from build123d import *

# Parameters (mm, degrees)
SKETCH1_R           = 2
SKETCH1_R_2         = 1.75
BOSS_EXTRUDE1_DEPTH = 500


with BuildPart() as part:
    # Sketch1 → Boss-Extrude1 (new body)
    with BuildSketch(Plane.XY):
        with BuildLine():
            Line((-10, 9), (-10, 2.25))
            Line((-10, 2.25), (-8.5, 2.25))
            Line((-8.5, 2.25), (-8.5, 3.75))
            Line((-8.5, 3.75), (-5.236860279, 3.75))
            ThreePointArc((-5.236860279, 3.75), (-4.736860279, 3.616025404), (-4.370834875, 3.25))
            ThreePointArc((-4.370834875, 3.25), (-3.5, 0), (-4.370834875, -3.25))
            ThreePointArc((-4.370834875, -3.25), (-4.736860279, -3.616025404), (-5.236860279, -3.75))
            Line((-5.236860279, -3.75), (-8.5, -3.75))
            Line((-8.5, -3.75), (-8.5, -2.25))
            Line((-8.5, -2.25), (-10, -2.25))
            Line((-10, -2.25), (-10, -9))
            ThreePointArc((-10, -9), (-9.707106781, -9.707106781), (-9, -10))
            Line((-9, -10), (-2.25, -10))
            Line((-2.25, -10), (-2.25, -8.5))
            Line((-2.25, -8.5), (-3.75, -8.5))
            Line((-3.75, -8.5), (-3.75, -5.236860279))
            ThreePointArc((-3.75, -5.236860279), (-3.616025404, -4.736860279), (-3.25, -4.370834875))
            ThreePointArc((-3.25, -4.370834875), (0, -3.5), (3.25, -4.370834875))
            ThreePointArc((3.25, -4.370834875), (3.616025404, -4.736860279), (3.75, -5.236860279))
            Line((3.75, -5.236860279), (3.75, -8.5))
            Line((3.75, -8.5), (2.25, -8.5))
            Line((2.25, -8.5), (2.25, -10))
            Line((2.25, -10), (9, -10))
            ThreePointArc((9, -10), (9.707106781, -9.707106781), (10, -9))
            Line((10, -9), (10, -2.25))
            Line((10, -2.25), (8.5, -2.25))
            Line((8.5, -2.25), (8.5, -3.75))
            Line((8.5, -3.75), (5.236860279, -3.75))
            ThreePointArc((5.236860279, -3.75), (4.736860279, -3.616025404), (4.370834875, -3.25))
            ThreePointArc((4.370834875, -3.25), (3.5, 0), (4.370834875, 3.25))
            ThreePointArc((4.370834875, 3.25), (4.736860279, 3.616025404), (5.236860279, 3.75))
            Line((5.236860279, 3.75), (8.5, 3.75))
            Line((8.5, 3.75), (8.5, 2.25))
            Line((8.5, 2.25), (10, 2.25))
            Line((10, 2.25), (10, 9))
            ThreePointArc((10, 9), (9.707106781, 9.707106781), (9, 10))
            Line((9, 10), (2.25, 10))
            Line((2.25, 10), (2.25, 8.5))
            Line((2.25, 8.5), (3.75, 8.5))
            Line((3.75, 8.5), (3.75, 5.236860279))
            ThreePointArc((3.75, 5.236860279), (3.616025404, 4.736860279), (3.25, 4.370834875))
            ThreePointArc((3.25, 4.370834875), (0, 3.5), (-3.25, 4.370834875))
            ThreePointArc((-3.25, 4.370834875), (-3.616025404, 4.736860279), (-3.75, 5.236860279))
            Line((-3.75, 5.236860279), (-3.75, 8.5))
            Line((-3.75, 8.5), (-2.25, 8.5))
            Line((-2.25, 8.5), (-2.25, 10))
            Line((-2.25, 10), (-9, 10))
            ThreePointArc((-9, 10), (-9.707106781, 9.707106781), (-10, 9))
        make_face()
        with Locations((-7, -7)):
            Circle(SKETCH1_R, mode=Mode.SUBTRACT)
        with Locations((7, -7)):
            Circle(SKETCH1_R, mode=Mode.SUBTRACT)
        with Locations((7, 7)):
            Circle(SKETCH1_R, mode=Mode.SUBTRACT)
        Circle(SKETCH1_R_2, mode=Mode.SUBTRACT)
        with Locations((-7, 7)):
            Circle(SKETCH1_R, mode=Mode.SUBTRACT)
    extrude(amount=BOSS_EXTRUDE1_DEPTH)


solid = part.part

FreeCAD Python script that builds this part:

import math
import FreeCAD as App
import Part
import Sketcher
from FreeCAD import Vector

doc = App.newDocument("Part")
body = doc.addObject("PartDesign::Body", "Body")

sketch1 = body.newObject("Sketcher::SketchObject", "Sketch")
sketch1.AttachmentSupport = (doc.getObject("XY_Plane"), [""])
sketch1.MapMode = "FlatFace"
sketch1.addGeometry([
    Part.LineSegment(Vector(-10, 9, 0), Vector(-10, 2.2, 0)),
    Part.LineSegment(Vector(-10, 2.2, 0), Vector(-8.5, 2.2, 0)),
    Part.LineSegment(Vector(-8.5, 2.2, 0), Vector(-8.5, 3.8, 0)),
    Part.LineSegment(Vector(-8.5, 3.8, 0), Vector(-5.2, 3.8, 0)),
    Part.ArcOfCircle(Part.Circle(Vector(-5.2, 2.8, 0), Vector(0, 0, 1), 1), math.radians(30), math.radians(90)),
    Part.ArcOfCircle(Part.Circle(Vector(-10, 0, 0), Vector(0, 0, 1), 6.5), math.radians(-30), math.radians(30)),
    Part.ArcOfCircle(Part.Circle(Vector(-5.2, -2.8, 0), Vector(0, 0, 1), 1), math.radians(-90), math.radians(-30)),
    Part.LineSegment(Vector(-5.2, -3.8, 0), Vector(-8.5, -3.8, 0)),
    Part.LineSegment(Vector(-8.5, -3.8, 0), Vector(-8.5, -2.2, 0)),
    Part.LineSegment(Vector(-8.5, -2.2, 0), Vector(-10, -2.2, 0)),
    Part.LineSegment(Vector(-10, -2.2, 0), Vector(-10, -9, 0)),
    Part.ArcOfCircle(Part.Circle(Vector(-9, -9, 0), Vector(0, 0, 1), 1), math.radians(-180), math.radians(-90)),
    Part.LineSegment(Vector(-9, -10, 0), Vector(-2.2, -10, 0)),
    Part.LineSegment(Vector(-2.2, -10, 0), Vector(-2.2, -8.5, 0)),
    Part.LineSegment(Vector(-2.2, -8.5, 0), Vector(-3.8, -8.5, 0)),
    Part.LineSegment(Vector(-3.8, -8.5, 0), Vector(-3.8, -5.2, 0)),
    Part.ArcOfCircle(Part.Circle(Vector(-2.8, -5.2, 0), Vector(0, 0, 1), 1), math.radians(120), math.radians(180)),
    Part.ArcOfCircle(Part.Circle(Vector(0, -10, 0), Vector(0, 0, 1), 6.5), math.radians(60), math.radians(120)),
    Part.ArcOfCircle(Part.Circle(Vector(2.8, -5.2, 0), Vector(0, 0, 1), 1), math.radians(0), math.radians(60)),
    Part.LineSegment(Vector(3.8, -5.2, 0), Vector(3.8, -8.5, 0)),
    Part.LineSegment(Vector(3.8, -8.5, 0), Vector(2.2, -8.5, 0)),
    Part.LineSegment(Vector(2.2, -8.5, 0), Vector(2.2, -10, 0)),
    Part.LineSegment(Vector(2.2, -10, 0), Vector(9, -10, 0)),
    Part.ArcOfCircle(Part.Circle(Vector(9, -9, 0), Vector(0, 0, 1), 1), math.radians(-90), math.radians(0)),
    Part.LineSegment(Vector(10, -9, 0), Vector(10, -2.2, 0)),
    Part.LineSegment(Vector(10, -2.2, 0), Vector(8.5, -2.2, 0)),
    Part.LineSegment(Vector(8.5, -2.2, 0), Vector(8.5, -3.8, 0)),
    Part.LineSegment(Vector(8.5, -3.8, 0), Vector(5.2, -3.8, 0)),
    Part.ArcOfCircle(Part.Circle(Vector(5.2, -2.8, 0), Vector(0, 0, 1), 1), math.radians(-150), math.radians(-90)),
    Part.ArcOfCircle(Part.Circle(Vector(10, 0, 0), Vector(0, 0, 1), 6.5), math.radians(150), math.radians(210)),
    Part.ArcOfCircle(Part.Circle(Vector(5.2, 2.8, 0), Vector(0, 0, 1), 1), math.radians(90), math.radians(150)),
    Part.LineSegment(Vector(5.2, 3.8, 0), Vector(8.5, 3.8, 0)),
    Part.LineSegment(Vector(8.5, 3.8, 0), Vector(8.5, 2.2, 0)),
    Part.LineSegment(Vector(8.5, 2.2, 0), Vector(10, 2.2, 0)),
    Part.LineSegment(Vector(10, 2.2, 0), Vector(10, 9, 0)),
    Part.ArcOfCircle(Part.Circle(Vector(9, 9, 0), Vector(0, 0, 1), 1), math.radians(0), math.radians(90)),
    Part.LineSegment(Vector(9, 10, 0), Vector(2.2, 10, 0)),
    Part.LineSegment(Vector(2.2, 10, 0), Vector(2.2, 8.5, 0)),
    Part.LineSegment(Vector(2.2, 8.5, 0), Vector(3.8, 8.5, 0)),
    Part.LineSegment(Vector(3.8, 8.5, 0), Vector(3.8, 5.2, 0)),
    Part.ArcOfCircle(Part.Circle(Vector(2.8, 5.2, 0), Vector(0, 0, 1), 1), math.radians(-60), math.radians(0)),
    Part.ArcOfCircle(Part.Circle(Vector(0, 10, 0), Vector(0, 0, 1), 6.5), math.radians(-120), math.radians(-60)),
    Part.ArcOfCircle(Part.Circle(Vector(-2.8, 5.2, 0), Vector(0, 0, 1), 1), math.radians(180), math.radians(240)),
    Part.LineSegment(Vector(-3.8, 5.2, 0), Vector(-3.8, 8.5, 0)),
    Part.LineSegment(Vector(-3.8, 8.5, 0), Vector(-2.2, 8.5, 0)),
    Part.LineSegment(Vector(-2.2, 8.5, 0), Vector(-2.2, 10, 0)),
    Part.LineSegment(Vector(-2.2, 10, 0), Vector(-9, 10, 0)),
    Part.ArcOfCircle(Part.Circle(Vector(-9, 9, 0), Vector(0, 0, 1), 1), math.radians(90), math.radians(180)),
    Part.Circle(Vector(-7, -7, 0), Vector(0, 0, 1), 2),
    Part.Circle(Vector(7, -7, 0), Vector(0, 0, 1), 2),
    Part.Circle(Vector(-7, 7, 0), Vector(0, 0, 1), 2),
    Part.Circle(Vector(0, 0, 0), Vector(0, 0, 1), 1.8),
    Part.Circle(Vector(7, 7, 0), Vector(0, 0, 1), 2),
], False)
sketch1.addConstraint([
    Sketcher.Constraint("Coincident", 0, 2, 1, 1),
    Sketcher.Constraint("Coincident", 1, 2, 2, 1),
    Sketcher.Constraint("Coincident", 2, 2, 3, 1),
    Sketcher.Constraint("Tangent", 3, 2, 4, 2),
    Sketcher.Constraint("Tangent", 4, 1, 5, 2),
    Sketcher.Constraint("Tangent", 5, 1, 6, 2),
    Sketcher.Constraint("Tangent", 6, 1, 7, 1),
    Sketcher.Constraint("Coincident", 7, 2, 8, 1),
    Sketcher.Constraint("Coincident", 8, 2, 9, 1),
    Sketcher.Constraint("Coincident", 9, 2, 10, 1),
    Sketcher.Constraint("Tangent", 10, 2, 11, 1),
    Sketcher.Constraint("Tangent", 11, 2, 12, 1),
    Sketcher.Constraint("Coincident", 12, 2, 13, 1),
    Sketcher.Constraint("Coincident", 13, 2, 14, 1),
    Sketcher.Constraint("Coincident", 14, 2, 15, 1),
    Sketcher.Constraint("Tangent", 15, 2, 16, 2),
    Sketcher.Constraint("Tangent", 16, 1, 17, 2),
    Sketcher.Constraint("Tangent", 17, 1, 18, 2),
    Sketcher.Constraint("Tangent", 18, 1, 19, 1),
    Sketcher.Constraint("Coincident", 19, 2, 20, 1),
    Sketcher.Constraint("Coincident", 20, 2, 21, 1),
    Sketcher.Constraint("Coincident", 21, 2, 22, 1),
    Sketcher.Constraint("Tangent", 22, 2, 23, 1),
    Sketcher.Constraint("Tangent", 23, 2, 24, 1),
    Sketcher.Constraint("Coincident", 24, 2, 25, 1),
    Sketcher.Constraint("Coincident", 25, 2, 26, 1),
    Sketcher.Constraint("Coincident", 26, 2, 27, 1),
    Sketcher.Constraint("Tangent", 27, 2, 28, 2),
    Sketcher.Constraint("Tangent", 28, 1, 29, 2),
    Sketcher.Constraint("Tangent", 29, 1, 30, 2),
    Sketcher.Constraint("Tangent", 30, 1, 31, 1),
    Sketcher.Constraint("Coincident", 31, 2, 32, 1),
    Sketcher.Constraint("Coincident", 32, 2, 33, 1),
    Sketcher.Constraint("Coincident", 33, 2, 34, 1),
    Sketcher.Constraint("Tangent", 34, 2, 35, 1),
    Sketcher.Constraint("Tangent", 35, 2, 36, 1),
    Sketcher.Constraint("Coincident", 36, 2, 37, 1),
    Sketcher.Constraint("Coincident", 37, 2, 38, 1),
    Sketcher.Constraint("Coincident", 38, 2, 39, 1),
    Sketcher.Constraint("Tangent", 39, 2, 40, 2),
    Sketcher.Constraint("Tangent", 40, 1, 41, 2),
    Sketcher.Constraint("Tangent", 41, 1, 42, 2),
    Sketcher.Constraint("Tangent", 42, 1, 43, 1),
    Sketcher.Constraint("Coincident", 43, 2, 44, 1),
    Sketcher.Constraint("Coincident", 44, 2, 45, 1),
    Sketcher.Constraint("Coincident", 45, 2, 46, 1),
    Sketcher.Constraint("Tangent", 46, 2, 47, 1),
    Sketcher.Constraint("Tangent", 47, 2, 0, 1),
    Sketcher.Constraint("Vertical", 0),
    Sketcher.Constraint("Horizontal", 1),
    Sketcher.Constraint("Vertical", 2),
    Sketcher.Constraint("Horizontal", 3),
    Sketcher.Constraint("Horizontal", 7),
    Sketcher.Constraint("Vertical", 8),
    Sketcher.Constraint("Horizontal", 9),
    Sketcher.Constraint("Vertical", 10),
    Sketcher.Constraint("Horizontal", 12),
    Sketcher.Constraint("Vertical", 13),
    Sketcher.Constraint("Horizontal", 14),
    Sketcher.Constraint("Vertical", 15),
    Sketcher.Constraint("Vertical", 19),
    Sketcher.Constraint("Horizontal", 20),
    Sketcher.Constraint("Vertical", 21),
    Sketcher.Constraint("Horizontal", 22),
    Sketcher.Constraint("Vertical", 24),
    Sketcher.Constraint("Horizontal", 25),
    Sketcher.Constraint("Vertical", 26),
    Sketcher.Constraint("Horizontal", 27),
    Sketcher.Constraint("Horizontal", 31),
    Sketcher.Constraint("Vertical", 32),
    Sketcher.Constraint("Horizontal", 33),
    Sketcher.Constraint("Vertical", 34),
    Sketcher.Constraint("Horizontal", 36),
    Sketcher.Constraint("Vertical", 37),
    Sketcher.Constraint("Horizontal", 38),
    Sketcher.Constraint("Vertical", 39),
    Sketcher.Constraint("Vertical", 43),
    Sketcher.Constraint("Horizontal", 44),
    Sketcher.Constraint("Vertical", 45),
    Sketcher.Constraint("Horizontal", 46),
    Sketcher.Constraint("Coincident", 51, 3, -1, 1),
    Sketcher.Constraint("Equal", 4, 6),
    Sketcher.Constraint("Equal", 6, 11),
    Sketcher.Constraint("Equal", 11, 16),
    Sketcher.Constraint("Equal", 5, 17),
    Sketcher.Constraint("Equal", 16, 18),
    Sketcher.Constraint("Equal", 18, 23),
    Sketcher.Constraint("Equal", 23, 28),
    Sketcher.Constraint("Equal", 17, 29),
    Sketcher.Constraint("Equal", 28, 30),
    Sketcher.Constraint("Equal", 30, 35),
    Sketcher.Constraint("Equal", 35, 40),
    Sketcher.Constraint("Equal", 29, 41),
    Sketcher.Constraint("Equal", 40, 42),
    Sketcher.Constraint("Equal", 42, 47),
    Sketcher.Constraint("Equal", 48, 49),
    Sketcher.Constraint("Equal", 49, 50),
    Sketcher.Constraint("Equal", 50, 52),
    Sketcher.Constraint("Symmetric", 4, 3, 28, 3, -1, 1),
    Sketcher.Constraint("Symmetric", 6, 3, 30, 3, -1, 1),
    Sketcher.Constraint("Symmetric", 11, 3, 35, 3, -1, 1),
    Sketcher.Constraint("Symmetric", 16, 3, 40, 3, -1, 1),
    Sketcher.Constraint("Symmetric", 18, 3, 42, 3, -1, 1),
    Sketcher.Constraint("Symmetric", 23, 3, 47, 3, -1, 1),
    Sketcher.Constraint("Symmetric", 49, 3, 50, 3, -1, 1),
    Sketcher.Constraint("Symmetric", 48, 3, 52, 3, -1, 1),
    Sketcher.Constraint("Symmetric", 1, 2, 25, 2, -1, 1),
    Sketcher.Constraint("Symmetric", 8, 2, 32, 2, -1, 1),
    Sketcher.Constraint("Symmetric", 13, 2, 37, 2, -1, 1),
    Sketcher.Constraint("Symmetric", 20, 2, 44, 2, -1, 1),
    Sketcher.Constraint("Symmetric", 16, 3, 18, 3, -2),
    Sketcher.Constraint("Symmetric", 11, 3, 23, 3, -2),
    Sketcher.Constraint("Symmetric", 6, 3, 28, 3, -2),
    Sketcher.Constraint("Symmetric", 48, 3, 49, 3, -2),
    Sketcher.Constraint("Symmetric", 13, 2, 20, 2, -2),
    Sketcher.Constraint("Symmetric", 8, 2, 25, 2, -2),
    Sketcher.Constraint("Horizontal", 17, 3, 11, 2),
    Sketcher.Constraint("Vertical", 5, 3, 0, 2),
    Sketcher.Constraint("Equal", 9, 14),
    Sketcher.Constraint("Equal", 46, 0),
    Sketcher.Constraint("Equal", 44, 2),
    Sketcher.Constraint("Equal", 8, 13),
    Sketcher.Constraint("Equal", 31, 15),
    Sketcher.Constraint("Diameter", 48, 4.0),
    Sketcher.Constraint("Radius", 4, 1.0),
    Sketcher.Constraint("Diameter", 51, 3.5),
    Sketcher.Constraint("Radius", 5, 6.5),
    Sketcher.Constraint("DistanceX", 1, 1, 1, 2, 1.5),
    Sketcher.Constraint("DistanceX", 5, 3, -1, 1, 10.0),
    Sketcher.Constraint("DistanceX", 48, 3, -1, 1, 7.0),
    Sketcher.Constraint("DistanceY", 48, 3, -1, 1, 7.0),
    Sketcher.Constraint("DistanceX", 12, 1, 12, 2, 6.75),
])
pad1 = body.newObject("PartDesign::Pad", "Pad")
pad1.Profile = sketch1
pad1.Length = 500

doc.recompute()
